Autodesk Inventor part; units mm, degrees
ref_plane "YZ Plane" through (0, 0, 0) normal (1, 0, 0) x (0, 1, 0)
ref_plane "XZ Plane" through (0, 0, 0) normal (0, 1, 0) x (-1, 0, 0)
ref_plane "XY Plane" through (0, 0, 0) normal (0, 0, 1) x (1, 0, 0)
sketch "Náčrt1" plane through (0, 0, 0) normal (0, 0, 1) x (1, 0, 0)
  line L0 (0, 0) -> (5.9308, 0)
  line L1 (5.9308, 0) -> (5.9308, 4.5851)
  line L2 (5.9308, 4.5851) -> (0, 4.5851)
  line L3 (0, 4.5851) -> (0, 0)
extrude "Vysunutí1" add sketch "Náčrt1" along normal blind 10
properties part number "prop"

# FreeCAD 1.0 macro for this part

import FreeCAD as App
import Part
import Sketcher

V = App.Vector
Q = App.Units.Quantity


def add_polygon(sketch, points):
    """Adds a closed chain of lines whose ends are joined by coincident constraints."""
    first, n = sketch.GeometryCount, len(points)
    for a, b in zip(points, points[1:] + points[:1]):
        sketch.addGeometry(Part.LineSegment(App.Vector(*a, 0), App.Vector(*b, 0)), False)
    for i in range(n):
        sketch.addConstraint(Sketcher.Constraint("Coincident", first + i, 2, first + (i + 1) % n, 1))

doc = App.newDocument("Part")
body = doc.addObject("PartDesign::Body", "Body")

# Sketch on XY plane
sketch1 = body.newObject("Sketcher::SketchObject", "Sketch")
sketch1.AttachmentSupport = (doc.getObject("XY_Plane"), [""])
sketch1.MapMode = "FlatFace"
add_polygon(sketch1, [(0, 4.6), (0, 0), (5.9, 0), (5.9, 4.6)])  # lines 0-3
sketch1.addConstraint([
    Sketcher.Constraint("Vertical", 0),
    Sketcher.Constraint("Horizontal", 1),
    Sketcher.Constraint("Vertical", 2),
    Sketcher.Constraint("Horizontal", 3),
    Sketcher.Constraint("Coincident", 0, 2, -1, 1),
    Sketcher.Constraint("DistanceY", 0, 2, 0, 1, Q("4.585 mm")),
    Sketcher.Constraint("DistanceX", 1, 1, 1, 2, Q("5.9308 mm")),
])
pad1 = body.newObject("PartDesign::Pad", "Pad")
pad1.Profile = sketch1
pad1.Length = 10

doc.recompute()
